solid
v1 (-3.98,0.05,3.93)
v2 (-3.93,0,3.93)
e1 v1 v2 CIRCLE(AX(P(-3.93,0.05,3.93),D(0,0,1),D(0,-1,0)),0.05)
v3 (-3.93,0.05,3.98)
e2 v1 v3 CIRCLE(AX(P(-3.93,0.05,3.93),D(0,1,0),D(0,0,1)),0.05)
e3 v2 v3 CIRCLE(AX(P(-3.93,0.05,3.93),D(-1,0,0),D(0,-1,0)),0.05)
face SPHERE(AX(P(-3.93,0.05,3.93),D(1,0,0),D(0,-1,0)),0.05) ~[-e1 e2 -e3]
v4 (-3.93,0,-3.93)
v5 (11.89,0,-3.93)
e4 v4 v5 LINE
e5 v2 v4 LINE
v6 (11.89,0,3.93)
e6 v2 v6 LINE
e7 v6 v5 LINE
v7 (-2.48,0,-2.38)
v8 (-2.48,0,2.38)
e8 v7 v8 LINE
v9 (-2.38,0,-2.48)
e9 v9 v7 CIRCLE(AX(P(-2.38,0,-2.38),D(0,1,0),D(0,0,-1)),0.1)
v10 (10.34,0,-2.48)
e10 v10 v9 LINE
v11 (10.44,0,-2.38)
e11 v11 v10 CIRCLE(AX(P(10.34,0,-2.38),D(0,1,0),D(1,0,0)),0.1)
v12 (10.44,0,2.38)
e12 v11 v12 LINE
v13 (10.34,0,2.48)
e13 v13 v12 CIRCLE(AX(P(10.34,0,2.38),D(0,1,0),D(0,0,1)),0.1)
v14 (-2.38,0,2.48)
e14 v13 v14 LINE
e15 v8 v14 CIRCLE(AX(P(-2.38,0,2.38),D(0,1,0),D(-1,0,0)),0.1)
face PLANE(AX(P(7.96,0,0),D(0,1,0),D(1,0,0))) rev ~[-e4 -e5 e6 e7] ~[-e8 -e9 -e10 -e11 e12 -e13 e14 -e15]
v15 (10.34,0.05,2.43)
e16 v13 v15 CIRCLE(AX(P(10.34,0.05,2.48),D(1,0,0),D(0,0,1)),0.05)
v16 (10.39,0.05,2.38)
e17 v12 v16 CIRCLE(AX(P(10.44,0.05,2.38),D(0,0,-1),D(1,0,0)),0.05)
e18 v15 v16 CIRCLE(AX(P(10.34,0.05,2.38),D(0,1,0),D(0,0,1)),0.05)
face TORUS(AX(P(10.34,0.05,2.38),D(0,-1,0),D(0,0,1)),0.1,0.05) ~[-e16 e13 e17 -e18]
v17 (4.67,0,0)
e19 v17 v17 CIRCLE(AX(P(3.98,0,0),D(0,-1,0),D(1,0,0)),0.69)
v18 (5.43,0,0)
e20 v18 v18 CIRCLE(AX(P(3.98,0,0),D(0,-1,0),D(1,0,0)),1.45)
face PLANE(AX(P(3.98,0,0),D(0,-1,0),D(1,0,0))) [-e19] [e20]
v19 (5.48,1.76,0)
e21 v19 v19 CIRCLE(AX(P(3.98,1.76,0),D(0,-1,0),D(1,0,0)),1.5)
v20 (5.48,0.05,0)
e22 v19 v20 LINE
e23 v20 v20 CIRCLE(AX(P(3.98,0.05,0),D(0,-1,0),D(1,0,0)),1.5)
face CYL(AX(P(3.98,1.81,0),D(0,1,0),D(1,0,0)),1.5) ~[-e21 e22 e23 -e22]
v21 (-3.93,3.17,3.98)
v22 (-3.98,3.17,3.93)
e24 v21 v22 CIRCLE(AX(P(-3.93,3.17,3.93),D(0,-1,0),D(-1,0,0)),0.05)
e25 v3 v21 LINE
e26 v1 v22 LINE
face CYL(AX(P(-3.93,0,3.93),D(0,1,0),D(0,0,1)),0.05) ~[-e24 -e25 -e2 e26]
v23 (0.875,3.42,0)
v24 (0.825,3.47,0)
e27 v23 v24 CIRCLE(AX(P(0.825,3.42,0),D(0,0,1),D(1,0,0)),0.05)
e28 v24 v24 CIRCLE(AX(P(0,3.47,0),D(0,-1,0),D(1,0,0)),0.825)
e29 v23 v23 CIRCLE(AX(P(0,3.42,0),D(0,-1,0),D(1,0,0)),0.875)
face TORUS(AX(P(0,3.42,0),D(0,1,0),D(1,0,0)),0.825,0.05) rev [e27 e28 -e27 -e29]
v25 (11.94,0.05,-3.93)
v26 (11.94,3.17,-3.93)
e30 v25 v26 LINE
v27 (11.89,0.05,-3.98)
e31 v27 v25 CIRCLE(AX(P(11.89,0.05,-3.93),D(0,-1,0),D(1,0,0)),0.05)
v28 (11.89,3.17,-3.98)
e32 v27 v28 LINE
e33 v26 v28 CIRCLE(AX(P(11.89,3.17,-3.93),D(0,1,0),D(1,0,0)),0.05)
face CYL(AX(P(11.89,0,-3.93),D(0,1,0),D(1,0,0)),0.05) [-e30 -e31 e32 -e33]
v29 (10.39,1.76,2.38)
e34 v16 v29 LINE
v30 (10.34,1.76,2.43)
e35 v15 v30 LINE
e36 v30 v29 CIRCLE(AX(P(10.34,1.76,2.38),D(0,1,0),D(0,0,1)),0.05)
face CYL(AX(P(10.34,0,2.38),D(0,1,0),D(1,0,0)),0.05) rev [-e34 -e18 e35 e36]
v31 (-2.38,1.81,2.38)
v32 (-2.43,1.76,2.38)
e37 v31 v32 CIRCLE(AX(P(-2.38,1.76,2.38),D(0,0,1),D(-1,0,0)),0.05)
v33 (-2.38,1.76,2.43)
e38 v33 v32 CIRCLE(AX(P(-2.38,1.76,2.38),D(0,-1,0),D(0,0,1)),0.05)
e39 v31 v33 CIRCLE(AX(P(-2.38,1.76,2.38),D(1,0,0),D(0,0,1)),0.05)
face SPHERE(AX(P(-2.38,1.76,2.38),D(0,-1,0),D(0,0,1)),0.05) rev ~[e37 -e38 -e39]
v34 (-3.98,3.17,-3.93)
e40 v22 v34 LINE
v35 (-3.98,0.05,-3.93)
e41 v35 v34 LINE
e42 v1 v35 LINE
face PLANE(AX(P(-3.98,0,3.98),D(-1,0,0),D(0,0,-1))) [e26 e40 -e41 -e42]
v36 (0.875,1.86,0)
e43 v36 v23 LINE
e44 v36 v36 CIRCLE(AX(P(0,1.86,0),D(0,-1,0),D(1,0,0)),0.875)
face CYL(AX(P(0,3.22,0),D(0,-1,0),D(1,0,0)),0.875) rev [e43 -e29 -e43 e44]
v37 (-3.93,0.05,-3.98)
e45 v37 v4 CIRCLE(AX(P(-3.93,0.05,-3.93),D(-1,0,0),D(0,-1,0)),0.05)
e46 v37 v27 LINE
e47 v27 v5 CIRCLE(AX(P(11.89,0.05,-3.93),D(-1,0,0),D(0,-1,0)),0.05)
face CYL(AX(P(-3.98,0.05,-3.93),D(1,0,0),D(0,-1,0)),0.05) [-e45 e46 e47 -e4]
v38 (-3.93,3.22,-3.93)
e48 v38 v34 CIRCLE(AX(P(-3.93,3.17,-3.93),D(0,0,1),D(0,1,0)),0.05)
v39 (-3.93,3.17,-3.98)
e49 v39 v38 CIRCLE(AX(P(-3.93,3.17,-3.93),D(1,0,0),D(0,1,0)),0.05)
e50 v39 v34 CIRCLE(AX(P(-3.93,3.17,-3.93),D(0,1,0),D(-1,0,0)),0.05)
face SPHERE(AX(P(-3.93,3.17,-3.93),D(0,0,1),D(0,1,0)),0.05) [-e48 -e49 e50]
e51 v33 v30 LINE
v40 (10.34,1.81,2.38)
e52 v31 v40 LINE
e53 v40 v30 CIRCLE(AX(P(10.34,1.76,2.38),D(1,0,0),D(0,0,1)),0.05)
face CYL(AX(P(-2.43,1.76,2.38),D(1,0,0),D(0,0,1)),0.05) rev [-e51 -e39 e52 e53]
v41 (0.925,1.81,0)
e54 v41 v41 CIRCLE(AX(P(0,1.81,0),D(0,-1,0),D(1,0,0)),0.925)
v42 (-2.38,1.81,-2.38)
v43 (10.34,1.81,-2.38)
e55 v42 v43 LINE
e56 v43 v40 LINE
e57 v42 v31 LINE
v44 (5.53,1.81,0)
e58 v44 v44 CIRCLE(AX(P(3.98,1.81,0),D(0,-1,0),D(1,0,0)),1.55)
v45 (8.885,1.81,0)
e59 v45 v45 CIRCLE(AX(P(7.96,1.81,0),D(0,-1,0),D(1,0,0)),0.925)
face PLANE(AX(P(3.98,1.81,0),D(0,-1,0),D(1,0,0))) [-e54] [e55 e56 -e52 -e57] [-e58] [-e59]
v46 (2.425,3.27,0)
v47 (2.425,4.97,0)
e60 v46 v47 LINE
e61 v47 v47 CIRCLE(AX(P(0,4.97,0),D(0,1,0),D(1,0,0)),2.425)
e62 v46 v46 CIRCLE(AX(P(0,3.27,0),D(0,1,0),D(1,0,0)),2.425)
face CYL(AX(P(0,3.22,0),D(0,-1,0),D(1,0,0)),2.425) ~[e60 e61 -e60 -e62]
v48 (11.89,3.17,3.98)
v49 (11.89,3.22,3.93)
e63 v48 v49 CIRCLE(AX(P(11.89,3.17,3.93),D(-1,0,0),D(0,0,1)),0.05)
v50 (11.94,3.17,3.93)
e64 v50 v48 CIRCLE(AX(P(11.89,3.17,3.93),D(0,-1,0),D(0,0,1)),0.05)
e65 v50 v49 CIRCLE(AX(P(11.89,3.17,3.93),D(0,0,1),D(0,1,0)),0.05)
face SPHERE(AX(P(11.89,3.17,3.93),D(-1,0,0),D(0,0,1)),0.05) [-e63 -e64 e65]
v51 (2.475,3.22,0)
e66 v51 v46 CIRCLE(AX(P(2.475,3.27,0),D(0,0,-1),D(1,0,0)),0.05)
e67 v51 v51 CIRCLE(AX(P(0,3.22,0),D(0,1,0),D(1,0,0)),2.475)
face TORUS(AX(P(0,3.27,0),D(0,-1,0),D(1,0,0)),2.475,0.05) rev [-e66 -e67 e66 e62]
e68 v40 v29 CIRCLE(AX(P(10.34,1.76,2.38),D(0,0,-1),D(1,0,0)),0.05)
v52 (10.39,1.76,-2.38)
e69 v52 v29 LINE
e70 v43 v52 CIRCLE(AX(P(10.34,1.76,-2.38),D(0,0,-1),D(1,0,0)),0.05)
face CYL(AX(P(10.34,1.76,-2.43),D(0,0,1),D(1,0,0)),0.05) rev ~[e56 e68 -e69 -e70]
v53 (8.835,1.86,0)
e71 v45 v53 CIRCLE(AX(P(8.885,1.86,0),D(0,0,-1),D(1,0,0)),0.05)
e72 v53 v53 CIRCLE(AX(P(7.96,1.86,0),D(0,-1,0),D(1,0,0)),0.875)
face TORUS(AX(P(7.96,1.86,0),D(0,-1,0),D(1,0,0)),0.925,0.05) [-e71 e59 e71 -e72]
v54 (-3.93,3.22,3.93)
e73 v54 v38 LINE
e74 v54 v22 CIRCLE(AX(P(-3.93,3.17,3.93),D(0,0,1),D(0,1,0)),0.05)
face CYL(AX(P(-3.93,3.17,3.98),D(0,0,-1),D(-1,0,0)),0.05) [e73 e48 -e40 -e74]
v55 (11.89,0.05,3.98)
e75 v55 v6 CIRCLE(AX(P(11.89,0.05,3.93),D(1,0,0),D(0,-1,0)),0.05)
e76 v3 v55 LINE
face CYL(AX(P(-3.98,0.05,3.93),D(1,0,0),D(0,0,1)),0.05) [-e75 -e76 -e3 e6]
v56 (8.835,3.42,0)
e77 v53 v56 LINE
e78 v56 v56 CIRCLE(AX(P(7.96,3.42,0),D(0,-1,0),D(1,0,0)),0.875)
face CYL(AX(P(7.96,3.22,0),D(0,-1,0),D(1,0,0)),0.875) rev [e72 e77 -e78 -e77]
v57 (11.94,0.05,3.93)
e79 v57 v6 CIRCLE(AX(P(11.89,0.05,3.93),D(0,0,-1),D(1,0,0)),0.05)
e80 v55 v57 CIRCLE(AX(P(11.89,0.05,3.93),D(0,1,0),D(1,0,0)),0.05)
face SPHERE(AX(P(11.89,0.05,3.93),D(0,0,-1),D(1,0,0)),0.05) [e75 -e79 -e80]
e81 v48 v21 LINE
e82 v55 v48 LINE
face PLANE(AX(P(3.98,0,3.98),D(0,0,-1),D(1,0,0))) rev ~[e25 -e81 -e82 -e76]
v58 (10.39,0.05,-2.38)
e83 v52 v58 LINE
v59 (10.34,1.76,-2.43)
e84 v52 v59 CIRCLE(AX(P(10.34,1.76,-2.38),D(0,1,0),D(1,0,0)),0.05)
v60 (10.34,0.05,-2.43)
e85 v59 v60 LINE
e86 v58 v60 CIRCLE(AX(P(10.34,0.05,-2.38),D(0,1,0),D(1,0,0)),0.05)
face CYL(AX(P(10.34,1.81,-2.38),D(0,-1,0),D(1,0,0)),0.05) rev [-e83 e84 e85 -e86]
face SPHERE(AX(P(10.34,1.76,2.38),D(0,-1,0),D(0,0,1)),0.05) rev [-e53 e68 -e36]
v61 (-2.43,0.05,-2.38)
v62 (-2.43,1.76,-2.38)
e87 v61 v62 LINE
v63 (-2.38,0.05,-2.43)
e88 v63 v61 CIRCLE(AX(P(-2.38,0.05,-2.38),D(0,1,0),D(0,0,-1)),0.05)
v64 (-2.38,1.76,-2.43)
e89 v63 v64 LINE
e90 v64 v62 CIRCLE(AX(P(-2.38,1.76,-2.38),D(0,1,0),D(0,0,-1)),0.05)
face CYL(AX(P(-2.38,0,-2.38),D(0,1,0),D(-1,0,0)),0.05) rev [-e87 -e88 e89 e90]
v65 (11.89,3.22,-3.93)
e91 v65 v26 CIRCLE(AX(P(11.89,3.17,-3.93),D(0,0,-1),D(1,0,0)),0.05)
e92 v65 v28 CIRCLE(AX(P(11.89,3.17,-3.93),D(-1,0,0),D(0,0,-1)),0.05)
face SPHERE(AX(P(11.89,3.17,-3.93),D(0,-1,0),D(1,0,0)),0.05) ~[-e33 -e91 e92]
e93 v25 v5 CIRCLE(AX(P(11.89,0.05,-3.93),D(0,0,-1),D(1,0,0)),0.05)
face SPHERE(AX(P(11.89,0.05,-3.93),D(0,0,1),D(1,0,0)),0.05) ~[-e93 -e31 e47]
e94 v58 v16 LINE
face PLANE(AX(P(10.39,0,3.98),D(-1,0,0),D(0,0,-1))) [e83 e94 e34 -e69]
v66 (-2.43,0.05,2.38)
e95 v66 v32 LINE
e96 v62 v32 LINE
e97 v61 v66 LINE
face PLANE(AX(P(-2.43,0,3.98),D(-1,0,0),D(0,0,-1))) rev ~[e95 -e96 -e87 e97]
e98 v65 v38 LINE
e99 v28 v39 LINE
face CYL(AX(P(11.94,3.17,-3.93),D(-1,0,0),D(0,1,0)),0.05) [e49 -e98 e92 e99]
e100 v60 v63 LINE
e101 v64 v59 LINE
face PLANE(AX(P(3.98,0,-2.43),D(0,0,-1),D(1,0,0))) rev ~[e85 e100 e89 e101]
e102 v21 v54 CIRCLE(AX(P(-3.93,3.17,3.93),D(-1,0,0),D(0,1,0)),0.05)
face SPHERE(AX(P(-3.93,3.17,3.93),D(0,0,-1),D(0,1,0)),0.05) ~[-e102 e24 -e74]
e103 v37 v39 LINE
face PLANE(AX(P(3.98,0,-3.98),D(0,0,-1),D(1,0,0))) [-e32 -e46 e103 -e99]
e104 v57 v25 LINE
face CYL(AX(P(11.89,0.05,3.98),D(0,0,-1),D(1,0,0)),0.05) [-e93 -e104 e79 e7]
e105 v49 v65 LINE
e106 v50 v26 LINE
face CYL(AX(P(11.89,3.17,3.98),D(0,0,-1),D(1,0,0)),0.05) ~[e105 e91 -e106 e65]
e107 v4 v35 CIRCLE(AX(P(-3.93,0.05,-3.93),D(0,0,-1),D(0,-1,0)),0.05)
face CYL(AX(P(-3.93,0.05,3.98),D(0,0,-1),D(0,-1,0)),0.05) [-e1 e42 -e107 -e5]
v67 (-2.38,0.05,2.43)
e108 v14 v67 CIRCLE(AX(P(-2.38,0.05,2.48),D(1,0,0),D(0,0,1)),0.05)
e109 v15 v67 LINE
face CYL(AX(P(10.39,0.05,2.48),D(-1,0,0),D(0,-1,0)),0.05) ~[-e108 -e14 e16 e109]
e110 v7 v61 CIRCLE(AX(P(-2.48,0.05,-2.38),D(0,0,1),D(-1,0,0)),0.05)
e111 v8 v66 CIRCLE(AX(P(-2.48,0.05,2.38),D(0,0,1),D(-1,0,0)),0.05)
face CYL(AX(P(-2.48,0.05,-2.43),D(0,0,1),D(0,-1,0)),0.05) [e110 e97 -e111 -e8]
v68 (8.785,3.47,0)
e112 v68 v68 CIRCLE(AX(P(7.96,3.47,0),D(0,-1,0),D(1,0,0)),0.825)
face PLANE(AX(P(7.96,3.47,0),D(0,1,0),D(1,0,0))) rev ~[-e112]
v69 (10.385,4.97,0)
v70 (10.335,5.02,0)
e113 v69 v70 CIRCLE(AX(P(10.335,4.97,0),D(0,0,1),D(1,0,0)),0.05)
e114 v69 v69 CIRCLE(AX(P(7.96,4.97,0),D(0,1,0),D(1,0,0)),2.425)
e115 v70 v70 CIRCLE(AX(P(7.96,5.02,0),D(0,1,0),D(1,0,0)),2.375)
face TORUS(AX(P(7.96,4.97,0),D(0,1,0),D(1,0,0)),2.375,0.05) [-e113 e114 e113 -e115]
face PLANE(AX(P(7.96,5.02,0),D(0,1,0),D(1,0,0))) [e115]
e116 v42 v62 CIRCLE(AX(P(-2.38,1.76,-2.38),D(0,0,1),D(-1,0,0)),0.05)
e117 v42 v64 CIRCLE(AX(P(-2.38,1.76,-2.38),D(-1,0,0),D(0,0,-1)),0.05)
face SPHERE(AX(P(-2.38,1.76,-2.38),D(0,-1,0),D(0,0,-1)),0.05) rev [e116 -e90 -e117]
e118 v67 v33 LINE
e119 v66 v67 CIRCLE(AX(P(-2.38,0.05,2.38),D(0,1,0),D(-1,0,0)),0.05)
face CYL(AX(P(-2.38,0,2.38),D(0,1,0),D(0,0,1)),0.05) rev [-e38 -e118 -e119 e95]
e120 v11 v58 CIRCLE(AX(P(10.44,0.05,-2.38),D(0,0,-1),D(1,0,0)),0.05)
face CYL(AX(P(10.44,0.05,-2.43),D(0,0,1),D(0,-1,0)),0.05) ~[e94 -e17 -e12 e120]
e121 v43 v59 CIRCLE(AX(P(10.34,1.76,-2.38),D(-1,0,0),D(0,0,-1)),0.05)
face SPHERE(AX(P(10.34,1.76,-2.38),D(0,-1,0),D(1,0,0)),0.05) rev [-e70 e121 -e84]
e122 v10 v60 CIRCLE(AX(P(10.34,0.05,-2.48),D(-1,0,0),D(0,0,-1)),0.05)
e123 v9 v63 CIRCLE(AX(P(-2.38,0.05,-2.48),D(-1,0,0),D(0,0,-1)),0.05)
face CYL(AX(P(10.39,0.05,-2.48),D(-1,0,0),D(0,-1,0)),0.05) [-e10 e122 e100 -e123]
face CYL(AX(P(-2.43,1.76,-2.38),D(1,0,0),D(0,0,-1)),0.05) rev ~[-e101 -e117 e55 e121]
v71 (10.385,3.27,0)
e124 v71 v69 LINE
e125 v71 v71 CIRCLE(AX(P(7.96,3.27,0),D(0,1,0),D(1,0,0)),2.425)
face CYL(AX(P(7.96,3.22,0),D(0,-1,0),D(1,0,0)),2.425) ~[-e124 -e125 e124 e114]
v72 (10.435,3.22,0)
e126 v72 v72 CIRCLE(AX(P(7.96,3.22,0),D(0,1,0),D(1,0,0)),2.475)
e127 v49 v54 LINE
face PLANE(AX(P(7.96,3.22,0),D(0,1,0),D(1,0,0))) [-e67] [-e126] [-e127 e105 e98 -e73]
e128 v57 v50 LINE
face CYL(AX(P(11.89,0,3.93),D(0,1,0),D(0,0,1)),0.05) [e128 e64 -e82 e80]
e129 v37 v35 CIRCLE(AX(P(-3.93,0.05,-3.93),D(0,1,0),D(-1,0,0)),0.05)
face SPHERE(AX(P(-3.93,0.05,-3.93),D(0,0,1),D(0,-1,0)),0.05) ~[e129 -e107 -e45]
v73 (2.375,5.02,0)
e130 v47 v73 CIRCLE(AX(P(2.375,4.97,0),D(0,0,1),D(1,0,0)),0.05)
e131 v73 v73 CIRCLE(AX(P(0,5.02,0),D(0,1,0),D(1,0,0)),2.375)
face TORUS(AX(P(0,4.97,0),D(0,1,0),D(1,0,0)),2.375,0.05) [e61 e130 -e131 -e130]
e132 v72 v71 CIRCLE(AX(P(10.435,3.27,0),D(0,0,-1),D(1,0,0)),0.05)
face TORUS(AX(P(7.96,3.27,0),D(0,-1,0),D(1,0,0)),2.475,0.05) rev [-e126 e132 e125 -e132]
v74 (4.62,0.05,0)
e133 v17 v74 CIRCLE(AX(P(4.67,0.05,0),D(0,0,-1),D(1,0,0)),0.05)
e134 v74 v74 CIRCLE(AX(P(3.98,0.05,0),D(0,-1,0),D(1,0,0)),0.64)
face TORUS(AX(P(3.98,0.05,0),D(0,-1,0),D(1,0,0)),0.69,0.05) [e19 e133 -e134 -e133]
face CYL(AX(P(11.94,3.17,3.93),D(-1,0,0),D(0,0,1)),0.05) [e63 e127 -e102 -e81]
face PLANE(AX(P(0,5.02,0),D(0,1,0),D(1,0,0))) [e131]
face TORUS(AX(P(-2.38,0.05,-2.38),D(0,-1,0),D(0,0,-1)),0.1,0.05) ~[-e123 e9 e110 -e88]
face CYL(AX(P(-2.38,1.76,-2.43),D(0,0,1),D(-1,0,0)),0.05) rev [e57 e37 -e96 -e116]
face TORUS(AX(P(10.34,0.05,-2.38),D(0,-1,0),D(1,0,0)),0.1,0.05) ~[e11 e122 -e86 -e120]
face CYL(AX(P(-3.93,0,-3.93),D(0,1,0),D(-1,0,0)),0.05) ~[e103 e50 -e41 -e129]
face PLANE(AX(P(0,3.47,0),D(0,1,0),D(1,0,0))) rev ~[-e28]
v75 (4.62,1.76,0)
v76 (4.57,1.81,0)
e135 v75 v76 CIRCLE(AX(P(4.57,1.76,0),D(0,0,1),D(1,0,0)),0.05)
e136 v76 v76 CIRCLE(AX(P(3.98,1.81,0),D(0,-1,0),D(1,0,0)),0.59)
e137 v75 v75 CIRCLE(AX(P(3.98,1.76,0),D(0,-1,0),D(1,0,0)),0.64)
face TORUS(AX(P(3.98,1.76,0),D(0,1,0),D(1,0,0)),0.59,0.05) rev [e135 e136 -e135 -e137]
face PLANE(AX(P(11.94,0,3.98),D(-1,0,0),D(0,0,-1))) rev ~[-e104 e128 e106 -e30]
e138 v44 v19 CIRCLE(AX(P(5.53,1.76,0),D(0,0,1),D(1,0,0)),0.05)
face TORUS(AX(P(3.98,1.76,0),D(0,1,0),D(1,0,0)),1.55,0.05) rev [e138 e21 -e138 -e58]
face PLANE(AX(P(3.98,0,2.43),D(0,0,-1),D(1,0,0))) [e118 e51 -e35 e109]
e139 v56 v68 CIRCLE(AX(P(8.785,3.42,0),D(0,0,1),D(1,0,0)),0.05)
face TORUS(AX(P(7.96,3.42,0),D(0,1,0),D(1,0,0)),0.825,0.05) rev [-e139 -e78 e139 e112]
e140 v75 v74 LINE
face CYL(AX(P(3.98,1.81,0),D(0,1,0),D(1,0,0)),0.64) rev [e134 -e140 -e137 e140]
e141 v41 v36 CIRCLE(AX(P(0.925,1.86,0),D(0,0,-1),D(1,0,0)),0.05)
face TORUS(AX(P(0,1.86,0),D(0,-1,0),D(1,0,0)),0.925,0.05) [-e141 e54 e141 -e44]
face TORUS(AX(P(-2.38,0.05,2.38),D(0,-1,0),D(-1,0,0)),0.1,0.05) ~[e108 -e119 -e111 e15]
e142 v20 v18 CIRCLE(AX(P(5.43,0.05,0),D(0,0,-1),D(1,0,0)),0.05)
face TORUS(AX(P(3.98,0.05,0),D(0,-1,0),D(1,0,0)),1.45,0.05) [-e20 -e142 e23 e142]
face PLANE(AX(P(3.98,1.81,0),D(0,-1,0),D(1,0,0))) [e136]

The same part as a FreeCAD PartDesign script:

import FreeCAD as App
import Part
import Sketcher
from FreeCAD import Vector


def faces_at(feature, points):
    """Names of the faces that lie closest to the given points."""
    faces = feature.Shape.Faces
    near = lambda p: min(range(len(faces)), key=lambda i: faces[i].distToShape(Part.Vertex(*p))[0])
    return sorted({f"Face{near(p) + 1}" for p in points})


def add_polygon(sketch, points):
    """Adds a closed chain of lines whose ends are joined by coincident constraints."""
    first, n = sketch.GeometryCount, len(points)
    for a, b in zip(points, points[1:] + points[:1]):
        sketch.addGeometry(Part.LineSegment(App.Vector(*a, 0), App.Vector(*b, 0)), False)
    for i in range(n):
        sketch.addConstraint(Sketcher.Constraint("Coincident", first + i, 2, first + (i + 1) % n, 1))

doc = App.newDocument("Part")
body = doc.addObject("PartDesign::Body", "Body")

# Sketch on XZ plane
sketch1 = doc.addObject("Sketcher::SketchObject", "Sketch")
body.addObject(sketch1)
sketch1.AttachmentSupport = (doc.XZ_Plane, [""])
sketch1.MapMode = "FlatFace"
add_polygon(sketch1, [(-3.98, -3.98), (-3.98, 3.98), (3.98, 3.98), (3.98, -3.98)])  # lines 0-3
sketch1.addConstraint(Sketcher.Constraint("Vertical", 0))
sketch1.addConstraint(Sketcher.Constraint("Horizontal", 1))
sketch1.addConstraint(Sketcher.Constraint("Vertical", 2))
sketch1.addConstraint(Sketcher.Constraint("Horizontal", 3))
sketch1.addConstraint(Sketcher.Constraint("Symmetric", 0, 2, 2, 2, -1, 1))
sketch1.addConstraint(Sketcher.Constraint("Equal", 3, 0))
sketch1.addConstraint(Sketcher.Constraint("DistanceX", 1, 1, 1, 2, 7.96))
pad1 = doc.addObject("PartDesign::Pad", "Pad")
body.addObject(pad1)
pad1.Profile = sketch1
pad1.Length = 3.22
pad1.Reversed = True

# Sketch on XZ plane
sketch2 = doc.addObject("Sketcher::SketchObject", "Sketch001")
body.addObject(sketch2)
sketch2.AttachmentSupport = (doc.XZ_Plane, [""])
sketch2.MapMode = "FlatFace"
sketch2.AttachmentOffset = App.Placement(Vector(0, 0, -3.22), App.Rotation())
sketch2.addGeometry(Part.Circle(Vector(0, 0, 0), Vector(0, 0, 1), 2.425), False)
sketch2.addConstraint(Sketcher.Constraint("Coincident", 0, 3, -1, 1))
sketch2.addConstraint(Sketcher.Constraint("Diameter", 0, 4.85))
pad2 = doc.addObject("PartDesign::Pad", "Pad001")
body.addObject(pad2)
pad2.Profile = sketch2
pad2.Length = 1.8
pad2.Reversed = True
doc.recompute()

linearpattern = doc.addObject("PartDesign::LinearPattern", "LinearPattern")
body.addObject(linearpattern)
linearpattern.Originals = [pad1, pad2]
linearpattern.Direction = (doc.X_Axis, [""])
linearpattern.Mode = "offset"
linearpattern.Offset = 7.96
linearpattern.Occurrences = 2
body.Tip = linearpattern
doc.recompute()

thickness = doc.addObject("PartDesign::Thickness", "Thickness")
body.addObject(thickness)
thickness.Base = (linearpattern, faces_at(linearpattern, [(3.98, 0, 0)]))
thickness.Value = 1.55
thickness.Reversed = True
thickness.Join = "Intersection"

# Sketch on XZ plane
sketch3 = doc.addObject("Sketcher::SketchObject", "Sketch002")
body.addObject(sketch3)
sketch3.AttachmentSupport = (doc.XZ_Plane, [""])
sketch3.MapMode = "FlatFace"
sketch3.AttachmentOffset = App.Placement(Vector(0, 0, -1.67), App.Rotation())
add_polygon(sketch3, [(-2.43, 2.43), (-2.43, -2.43), (10.39, -2.43), (10.39, 2.43)])  # lines 0-3
sketch3.addConstraint(Sketcher.Constraint("Vertical", 0))
sketch3.addConstraint(Sketcher.Constraint("Horizontal", 1))
sketch3.addConstraint(Sketcher.Constraint("Vertical", 2))
sketch3.addConstraint(Sketcher.Constraint("Horizontal", 3))
sketch3.addConstraint(Sketcher.Constraint("DistanceX", 1, 1, 1, 2, 12.82))
sketch3.addConstraint(Sketcher.Constraint("DistanceY", 0, 2, 0, 1, 4.86))
sketch3.addConstraint(Sketcher.Constraint("DistanceX", 0, 2, -1, 1, 2.43))
sketch3.addConstraint(Sketcher.Constraint("DistanceY", 0, 2, -1, 1, 2.43))
pocket1 = doc.addObject("PartDesign::Pocket", "Pocket")
body.addObject(pocket1)
pocket1.Profile = sketch3
pocket1.Length = 0.14

# Sketch on XZ plane
sketch4 = doc.addObject("Sketcher::SketchObject", "Sketch003")
body.addObject(sketch4)
sketch4.AttachmentSupport = (doc.XZ_Plane, [""])
sketch4.MapMode = "FlatFace"
sketch4.AttachmentOffset = App.Placement(Vector(0, 0, -1.81), App.Rotation())
sketch4.addGeometry(Part.Circle(Vector(3.98, 0, 0), Vector(0, 0, 1), 1.5), False)
sketch4.addGeometry(Part.Circle(Vector(3.98, 0, 0), Vector(0, 0, 1), 0.64), False)
sketch4.addConstraint(Sketcher.Constraint("Coincident", 1, 3, 0, 3))
sketch4.addConstraint(Sketcher.Constraint("PointOnObject", 0, 3, -1))
sketch4.addConstraint(Sketcher.Constraint("Diameter", 0, 3.0))
sketch4.addConstraint(Sketcher.Constraint("Diameter", 1, 1.28))
sketch4.addConstraint(Sketcher.Constraint("DistanceX", -1, 1, 0, 3, 3.98))
pad3 = doc.addObject("PartDesign::Pad", "Pad002")
body.addObject(pad3)
pad3.Profile = sketch4
pad3.Length = 1.81
doc.recompute()

fillet = doc.addObject("PartDesign::Fillet", "Fillet")
body.addObject(fillet)
fillet.Base = (pad3, ["Edge1"])
fillet.UseAllEdges = True
fillet.Radius = 0.05

doc.recompute()
